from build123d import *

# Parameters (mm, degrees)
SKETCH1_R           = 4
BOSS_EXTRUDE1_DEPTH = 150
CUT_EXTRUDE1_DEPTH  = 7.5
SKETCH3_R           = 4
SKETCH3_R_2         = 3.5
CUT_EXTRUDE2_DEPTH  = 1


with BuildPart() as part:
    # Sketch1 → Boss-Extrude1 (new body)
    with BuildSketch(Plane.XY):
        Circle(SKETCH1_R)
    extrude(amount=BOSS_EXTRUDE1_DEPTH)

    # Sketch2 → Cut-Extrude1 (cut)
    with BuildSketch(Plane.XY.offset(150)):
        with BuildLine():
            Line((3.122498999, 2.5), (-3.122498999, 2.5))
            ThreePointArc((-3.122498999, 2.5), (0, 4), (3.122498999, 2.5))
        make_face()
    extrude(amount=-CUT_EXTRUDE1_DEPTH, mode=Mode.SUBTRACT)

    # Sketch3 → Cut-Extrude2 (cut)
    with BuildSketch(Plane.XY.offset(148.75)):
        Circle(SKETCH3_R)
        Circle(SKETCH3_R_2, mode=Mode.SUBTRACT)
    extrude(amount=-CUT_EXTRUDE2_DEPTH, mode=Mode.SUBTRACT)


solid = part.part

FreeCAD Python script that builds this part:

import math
import FreeCAD as App
import Part
import Sketcher
from FreeCAD import Vector
Q = App.Units.Quantity

doc = App.newDocument("Part")
body = doc.addObject("PartDesign::Body", "Body")

# Sketch on XY plane
sketch1 = body.newObject("Sketcher::SketchObject", "Sketch")
sketch1.AttachmentSupport = (doc.getObject("XY_Plane"), [""])
sketch1.MapMode = "FlatFace"
sketch1.addGeometry(Part.Circle(Vector(0, 0, 0), Vector(0, 0, 1), 4), False)
sketch1.addConstraint(Sketcher.Constraint("Coincident", 0, 3, -1, 1))
sketch1.addConstraint(Sketcher.Constraint("Diameter", 0, Q("8 mm")))
pad1 = body.newObject("PartDesign::Pad", "Pad")
pad1.Profile = sketch1
pad1.Length = 150

# Sketch on XY plane
sketch2 = body.newObject("Sketcher::SketchObject", "Sketch001")
sketch2.AttachmentSupport = (doc.getObject("XY_Plane"), [""])
sketch2.MapMode = "FlatFace"
sketch2.AttachmentOffset = App.Placement(Vector(0, 0, 150), App.Rotation())
sketch2.addGeometry(Part.LineSegment(Vector(-3.1, 2.5, 0), Vector(3.1, 2.5, 0)), False)
sketch2.addGeometry(Part.ArcOfCircle(Part.Circle(Vector(0, 0, 0), Vector(0, 0, 1), 4), math.radians(39), math.radians(141)), False)
sketch2.addConstraint(Sketcher.Constraint("Coincident", 0, 1, 1, 2))
sketch2.addConstraint(Sketcher.Constraint("Coincident", 1, 1, 0, 2))
sketch2.addConstraint(Sketcher.Constraint("Horizontal", 0))
sketch2.addConstraint(Sketcher.Constraint("Coincident", 1, 3, -1, 1))
sketch2.addConstraint(Sketcher.Constraint("Radius", 1, Q("4 mm")))
sketch2.addConstraint(Sketcher.Constraint("DistanceY", -1, 1, 0, 1, Q("2.5 mm")))
pocket1 = body.newObject("PartDesign::Pocket", "Pocket")
pocket1.Profile = sketch2
pocket1.Length = 7.5

# Sketch on XY plane
sketch3 = body.newObject("Sketcher::SketchObject", "Sketch002")
sketch3.AttachmentSupport = (doc.getObject("XY_Plane"), [""])
sketch3.MapMode = "FlatFace"
sketch3.AttachmentOffset = App.Placement(Vector(0, 0, 148.75), App.Rotation())
sketch3.addGeometry(Part.Circle(Vector(0, 0, 0), Vector(0, 0, 1), 4), False)
sketch3.addGeometry(Part.Circle(Vector(0, 0, 0), Vector(0, 0, 1), 3.5), False)
sketch3.addConstraint(Sketcher.Constraint("Coincident", 0, 3, -1, 1))
sketch3.addConstraint(Sketcher.Constraint("Coincident", 1, 3, -1, 1))
sketch3.addConstraint(Sketcher.Constraint("Diameter", 0, Q("8 mm")))
sketch3.addConstraint(Sketcher.Constraint("Diameter", 1, Q("7 mm")))
pocket2 = body.newObject("PartDesign::Pocket", "Pocket001")
pocket2.Profile = sketch3
pocket2.Length = 1

doc.recompute()
